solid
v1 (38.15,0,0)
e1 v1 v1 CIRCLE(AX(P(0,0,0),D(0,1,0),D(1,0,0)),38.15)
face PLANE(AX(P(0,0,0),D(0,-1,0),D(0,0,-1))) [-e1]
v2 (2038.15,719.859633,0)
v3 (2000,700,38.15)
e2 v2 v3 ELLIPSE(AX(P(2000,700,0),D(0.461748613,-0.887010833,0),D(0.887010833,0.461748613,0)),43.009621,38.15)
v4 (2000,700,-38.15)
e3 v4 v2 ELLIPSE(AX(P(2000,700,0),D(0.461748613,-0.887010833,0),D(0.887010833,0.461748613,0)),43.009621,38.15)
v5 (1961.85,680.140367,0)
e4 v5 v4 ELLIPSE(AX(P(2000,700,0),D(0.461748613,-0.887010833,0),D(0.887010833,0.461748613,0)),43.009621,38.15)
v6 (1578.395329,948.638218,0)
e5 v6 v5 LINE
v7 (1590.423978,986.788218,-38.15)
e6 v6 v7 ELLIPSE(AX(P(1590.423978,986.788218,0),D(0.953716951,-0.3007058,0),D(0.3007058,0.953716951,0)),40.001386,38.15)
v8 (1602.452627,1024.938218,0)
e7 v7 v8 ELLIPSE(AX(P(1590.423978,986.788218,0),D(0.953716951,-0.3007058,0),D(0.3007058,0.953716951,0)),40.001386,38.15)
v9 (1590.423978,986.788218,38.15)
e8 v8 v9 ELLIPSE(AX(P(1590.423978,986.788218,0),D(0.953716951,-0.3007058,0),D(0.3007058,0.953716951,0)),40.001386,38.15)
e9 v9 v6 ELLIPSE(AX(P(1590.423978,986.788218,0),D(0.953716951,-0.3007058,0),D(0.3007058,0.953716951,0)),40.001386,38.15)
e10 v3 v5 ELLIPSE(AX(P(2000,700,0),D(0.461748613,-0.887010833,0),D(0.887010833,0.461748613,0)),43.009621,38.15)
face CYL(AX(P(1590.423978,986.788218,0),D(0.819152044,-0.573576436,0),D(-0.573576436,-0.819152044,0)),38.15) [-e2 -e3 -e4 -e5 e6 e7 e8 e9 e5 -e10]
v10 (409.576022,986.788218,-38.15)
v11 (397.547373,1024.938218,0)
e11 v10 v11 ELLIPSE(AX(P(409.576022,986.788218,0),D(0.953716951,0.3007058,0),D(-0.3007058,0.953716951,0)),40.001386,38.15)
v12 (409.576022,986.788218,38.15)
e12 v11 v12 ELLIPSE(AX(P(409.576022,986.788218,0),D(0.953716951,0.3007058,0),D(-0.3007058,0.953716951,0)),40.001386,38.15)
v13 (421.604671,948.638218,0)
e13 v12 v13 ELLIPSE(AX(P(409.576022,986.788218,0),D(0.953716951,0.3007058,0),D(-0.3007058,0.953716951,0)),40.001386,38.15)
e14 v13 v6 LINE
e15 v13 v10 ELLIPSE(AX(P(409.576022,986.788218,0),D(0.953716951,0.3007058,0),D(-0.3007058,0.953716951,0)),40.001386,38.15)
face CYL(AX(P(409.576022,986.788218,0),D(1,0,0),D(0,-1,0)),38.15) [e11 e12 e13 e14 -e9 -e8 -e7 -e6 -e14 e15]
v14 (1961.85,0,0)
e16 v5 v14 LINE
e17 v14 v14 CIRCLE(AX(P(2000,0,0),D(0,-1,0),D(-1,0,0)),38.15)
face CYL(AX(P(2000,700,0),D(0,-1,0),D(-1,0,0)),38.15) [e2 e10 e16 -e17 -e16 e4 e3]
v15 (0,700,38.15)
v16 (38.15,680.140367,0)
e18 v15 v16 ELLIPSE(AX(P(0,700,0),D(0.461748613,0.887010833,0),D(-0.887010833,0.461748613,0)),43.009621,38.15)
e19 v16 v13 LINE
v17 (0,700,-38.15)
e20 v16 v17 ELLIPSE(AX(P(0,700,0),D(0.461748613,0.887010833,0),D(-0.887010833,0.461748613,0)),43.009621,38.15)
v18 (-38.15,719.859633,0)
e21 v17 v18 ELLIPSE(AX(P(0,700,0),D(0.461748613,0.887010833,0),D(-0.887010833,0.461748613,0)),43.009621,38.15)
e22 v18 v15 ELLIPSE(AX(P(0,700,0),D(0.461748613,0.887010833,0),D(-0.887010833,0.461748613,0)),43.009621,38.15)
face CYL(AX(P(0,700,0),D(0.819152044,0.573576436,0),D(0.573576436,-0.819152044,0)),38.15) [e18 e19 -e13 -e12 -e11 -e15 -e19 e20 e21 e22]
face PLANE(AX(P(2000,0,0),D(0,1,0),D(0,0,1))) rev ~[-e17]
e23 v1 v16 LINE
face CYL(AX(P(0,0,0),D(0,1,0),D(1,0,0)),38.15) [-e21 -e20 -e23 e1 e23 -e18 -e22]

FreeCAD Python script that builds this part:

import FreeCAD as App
import Part
import Sketcher
from FreeCAD import Vector
Q = App.Units.Quantity

doc = App.newDocument("Part")
body = doc.addObject("PartDesign::Body", "Body")

# Sketch on XZ plane
sketch1 = doc.addObject("Sketcher::SketchObject", "Sketch")
body.addObject(sketch1)
sketch1.AttachmentSupport = (doc.XZ_Plane, [""])
sketch1.MapMode = "FlatFace"
sketch1.addGeometry(Part.Circle(Vector(0, 0, 0), Vector(0, 0, 1), 38.15), False)
sketch1.addConstraint(Sketcher.Constraint("Coincident", 0, 3, -1, 1))
sketch1.addConstraint(Sketcher.Constraint("Diameter", 0, Q("76.3 mm")))

# Sketch on XY plane
sketch2 = doc.addObject("Sketcher::SketchObject", "Sketch001")
body.addObject(sketch2)
sketch2.AttachmentSupport = (doc.XY_Plane, [""])
sketch2.MapMode = "FlatFace"
sketch2.addGeometry(Part.LineSegment(Vector(0, 0, 0), Vector(0, 700, 0)), False)
sketch2.addGeometry(Part.LineSegment(Vector(0, 700, 0), Vector(409.576022, 986.788218, 0)), False)
sketch2.addGeometry(Part.LineSegment(Vector(409.576022, 986.788218, 0), Vector(1590.423978, 986.788218, 0)), False)
sketch2.addGeometry(Part.LineSegment(Vector(1590.423978, 986.788218, 0), Vector(2000, 700, 0)), False)
sketch2.addGeometry(Part.LineSegment(Vector(2000, 700, 0), Vector(2000, 0, 0)), False)
sketch2.addConstraint(Sketcher.Constraint("Coincident", 0, 2, 1, 1))
sketch2.addConstraint(Sketcher.Constraint("Coincident", 1, 2, 2, 1))
sketch2.addConstraint(Sketcher.Constraint("Coincident", 2, 2, 3, 1))
sketch2.addConstraint(Sketcher.Constraint("Coincident", 3, 2, 4, 1))
sketch2.addConstraint(Sketcher.Constraint("Vertical", 0))
sketch2.addConstraint(Sketcher.Constraint("Horizontal", 2))
sketch2.addConstraint(Sketcher.Constraint("Vertical", 4))
sketch2.addConstraint(Sketcher.Constraint("Coincident", 0, 1, -1, 1))
sketch2.addConstraint(Sketcher.Constraint("PointOnObject", 4, 2, -1))
sketch2.addConstraint(Sketcher.Constraint("Horizontal", 0, 2, 3, 2))
sketch2.addConstraint(Sketcher.Constraint("Equal", 1, 3))
sketch2.addConstraint(Sketcher.Constraint("DistanceY", 0, 1, 0, 2, Q("700 mm")))
sketch2.addConstraint(Sketcher.Constraint("Angle", 1, Q("35 deg")))
sketch2.addConstraint(Sketcher.Constraint("Distance", 1, Q("500 mm")))
sketch2.addConstraint(Sketcher.Constraint("DistanceX", -1, 1, 3, 2, Q("2000 mm")))
doc.recompute()

additivepipe = doc.addObject("PartDesign::AdditivePipe", "AdditivePipe")
body.addObject(additivepipe)
additivepipe.Profile = sketch1
additivepipe.Spine = (sketch2, ["Edge1", "Edge2", "Edge3", "Edge4", "Edge5"])
additivepipe.Transition = "Right corner"

doc.recompute()
